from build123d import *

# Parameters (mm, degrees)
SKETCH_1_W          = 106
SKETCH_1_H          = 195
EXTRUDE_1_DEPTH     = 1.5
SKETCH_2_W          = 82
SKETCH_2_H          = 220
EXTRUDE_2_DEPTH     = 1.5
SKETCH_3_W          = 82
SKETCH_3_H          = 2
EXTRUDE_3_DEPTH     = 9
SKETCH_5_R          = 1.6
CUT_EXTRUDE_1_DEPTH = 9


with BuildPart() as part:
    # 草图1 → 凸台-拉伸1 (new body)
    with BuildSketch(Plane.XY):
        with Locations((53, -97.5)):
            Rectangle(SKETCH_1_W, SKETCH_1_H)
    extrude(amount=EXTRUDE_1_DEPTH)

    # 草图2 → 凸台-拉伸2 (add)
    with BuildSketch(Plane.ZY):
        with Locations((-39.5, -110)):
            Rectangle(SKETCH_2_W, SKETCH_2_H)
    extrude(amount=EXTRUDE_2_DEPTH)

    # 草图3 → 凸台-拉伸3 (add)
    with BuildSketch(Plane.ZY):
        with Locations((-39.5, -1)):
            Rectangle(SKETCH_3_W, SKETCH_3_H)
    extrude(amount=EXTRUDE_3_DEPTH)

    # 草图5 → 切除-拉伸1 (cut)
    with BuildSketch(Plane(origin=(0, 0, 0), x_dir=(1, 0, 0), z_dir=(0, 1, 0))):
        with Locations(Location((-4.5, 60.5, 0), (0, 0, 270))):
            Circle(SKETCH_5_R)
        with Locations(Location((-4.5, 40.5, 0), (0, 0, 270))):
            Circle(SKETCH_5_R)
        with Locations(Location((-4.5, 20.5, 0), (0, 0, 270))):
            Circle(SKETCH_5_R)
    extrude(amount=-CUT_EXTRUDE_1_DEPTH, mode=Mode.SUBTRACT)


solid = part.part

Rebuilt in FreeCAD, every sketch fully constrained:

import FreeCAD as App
import Part
import Sketcher

V = App.Vector
Q = App.Units.Quantity

doc = App.newDocument("Part")
body = doc.addObject("PartDesign::Body", "Body")

sketch1 = doc.addObject("Sketcher::SketchObject", "Sketch")
body.addObject(sketch1)
sketch1.AttachmentSupport = (doc.XY_Plane, [""])
sketch1.MapMode = "FlatFace"
sketch1.addGeometry(Part.LineSegment(V(0, 0, 0), V(0, -195, 0)), False)
sketch1.addGeometry(Part.LineSegment(V(0, -195, 0), V(106, -195, 0)), False)
sketch1.addGeometry(Part.LineSegment(V(106, -195, 0), V(106, 0, 0)), False)
sketch1.addGeometry(Part.LineSegment(V(106, 0, 0), V(0, 0, 0)), False)
sketch1.addConstraint(Sketcher.Constraint("Coincident", 0, 2, 1, 1))
sketch1.addConstraint(Sketcher.Constraint("Coincident", 1, 2, 2, 1))
sketch1.addConstraint(Sketcher.Constraint("Coincident", 2, 2, 3, 1))
sketch1.addConstraint(Sketcher.Constraint("Coincident", 3, 2, 0, 1))
sketch1.addConstraint(Sketcher.Constraint("Vertical", 0))
sketch1.addConstraint(Sketcher.Constraint("Horizontal", 1))
sketch1.addConstraint(Sketcher.Constraint("Vertical", 2))
sketch1.addConstraint(Sketcher.Constraint("Horizontal", 3))
sketch1.addConstraint(Sketcher.Constraint("Coincident", 3, 2, -1, 1))
sketch1.addConstraint(Sketcher.Constraint("DistanceX", 1, 1, 1, 2, Q("106 mm")))
sketch1.addConstraint(Sketcher.Constraint("DistanceY", 0, 2, 0, 1, Q("195 mm")))
pad1 = doc.addObject("PartDesign::Pad", "Pad")
body.addObject(pad1)
pad1.Profile = sketch1
pad1.Length = 1.5

sketch2 = doc.addObject("Sketcher::SketchObject", "Sketch001")
body.addObject(sketch2)
sketch2.AttachmentSupport = (doc.YZ_Plane, [""])
sketch2.MapMode = "FlatFace"
sketch2.addGeometry(Part.LineSegment(V(0, -80, 0), V(-220, -80, 0)), False)
sketch2.addGeometry(Part.LineSegment(V(-220, -80, 0), V(-220, 2, 0)), False)
sketch2.addGeometry(Part.LineSegment(V(-220, 2, 0), V(0, 2, 0)), False)
sketch2.addGeometry(Part.LineSegment(V(0, 2, 0), V(0, -80, 0)), False)
sketch2.addConstraint(Sketcher.Constraint("Coincident", 0, 2, 1, 1))
sketch2.addConstraint(Sketcher.Constraint("Coincident", 1, 2, 2, 1))
sketch2.addConstraint(Sketcher.Constraint("Coincident", 2, 2, 3, 1))
sketch2.addConstraint(Sketcher.Constraint("Coincident", 3, 2, 0, 1))
sketch2.addConstraint(Sketcher.Constraint("Horizontal", 0))
sketch2.addConstraint(Sketcher.Constraint("Vertical", 1))
sketch2.addConstraint(Sketcher.Constraint("Horizontal", 2))
sketch2.addConstraint(Sketcher.Constraint("Vertical", 3))
sketch2.addConstraint(Sketcher.Constraint("PointOnObject", 2, 2, -2))
sketch2.addConstraint(Sketcher.Constraint("DistanceX", 0, 2, 0, 1, Q("220 mm")))
sketch2.addConstraint(Sketcher.Constraint("DistanceY", 1, 1, 1, 2, Q("82 mm")))
sketch2.addConstraint(Sketcher.Constraint("DistanceY", 0, 2, -1, 1, Q("80.5 mm")))
pad2 = doc.addObject("PartDesign::Pad", "Pad001")
body.addObject(pad2)
pad2.Profile = sketch2
pad2.Length = 1.5
pad2.Reversed = True

sketch3 = doc.addObject("Sketcher::SketchObject", "Sketch002")
body.addObject(sketch3)
sketch3.AttachmentSupport = (doc.YZ_Plane, [""])
sketch3.MapMode = "FlatFace"
sketch3.addGeometry(Part.LineSegment(V(0, -80.5, 0), V(-2, -80.5, 0)), False)
sketch3.addGeometry(Part.LineSegment(V(-2, -80.5, 0), V(-2, 1.5, 0)), False)
sketch3.addGeometry(Part.LineSegment(V(-2, 1.5, 0), V(0, 1.5, 0)), False)
sketch3.addGeometry(Part.LineSegment(V(0, 1.5, 0), V(0, -80.5, 0)), False)
sketch3.addConstraint(Sketcher.Constraint("Coincident", 0, 2, 1, 1))
sketch3.addConstraint(Sketcher.Constraint("Coincident", 1, 2, 2, 1))
sketch3.addConstraint(Sketcher.Constraint("Coincident", 2, 2, 3, 1))
sketch3.addConstraint(Sketcher.Constraint("Coincident", 3, 2, 0, 1))
sketch3.addConstraint(Sketcher.Constraint("Horizontal", 0))
sketch3.addConstraint(Sketcher.Constraint("Vertical", 1))
sketch3.addConstraint(Sketcher.Constraint("Horizontal", 2))
sketch3.addConstraint(Sketcher.Constraint("Vertical", 3))
sketch3.addConstraint(Sketcher.Constraint("PointOnObject", 2, 2, -2))
sketch3.addConstraint(Sketcher.Constraint("DistanceX", 0, 2, 0, 1, Q("2 mm")))
sketch3.addConstraint(Sketcher.Constraint("DistanceY", 1, 1, 1, 2, Q("82 mm")))
sketch3.addConstraint(Sketcher.Constraint("DistanceY", 0, 2, -1, 1, Q("80.5 mm")))
pad3 = doc.addObject("PartDesign::Pad", "Pad002")
body.addObject(pad3)
pad3.Profile = sketch3
pad3.Length = 9
pad3.Reversed = True

sketch4 = doc.addObject("Sketcher::SketchObject", "Sketch003")
body.addObject(sketch4)
sketch4.AttachmentSupport = (doc.XZ_Plane, [""])
sketch4.MapMode = "FlatFace"
sketch4.addGeometry(Part.Circle(V(-4.5, -60.5, 0), V(0, 0, 1), 1.6), False)
sketch4.addGeometry(Part.Circle(V(-4.5, -40.5, 0), V(0, 0, 1), 1.6), False)
sketch4.addGeometry(Part.Circle(V(-4.5, -20.5, 0), V(0, 0, 1), 1.6), False)
sketch4.addConstraint(Sketcher.Constraint("Equal", 0, 1))
sketch4.addConstraint(Sketcher.Constraint("Equal", 1, 2))
sketch4.addConstraint(Sketcher.Constraint("Vertical", 0, 3, 1, 3))
sketch4.addConstraint(Sketcher.Constraint("Vertical", 1, 3, 2, 3))
sketch4.addConstraint(Sketcher.Constraint("Diameter", 0, Q("3.2 mm")))
sketch4.addConstraint(Sketcher.Constraint("DistanceY", 0, 3, 1, 3, Q("20 mm")))
sketch4.addConstraint(Sketcher.Constraint("DistanceY", 1, 3, 2, 3, Q("20 mm")))
sketch4.addConstraint(Sketcher.Constraint("DistanceX", 0, 3, -1, 1, Q("4.5 mm")))
sketch4.addConstraint(Sketcher.Constraint("DistanceY", 0, 3, -1, 1, Q("60.5 mm")))
pocket1 = doc.addObject("PartDesign::Pocket", "Pocket")
body.addObject(pocket1)
pocket1.Profile = sketch4
pocket1.Length = 9
pocket1.Reversed = True

doc.recompute()
